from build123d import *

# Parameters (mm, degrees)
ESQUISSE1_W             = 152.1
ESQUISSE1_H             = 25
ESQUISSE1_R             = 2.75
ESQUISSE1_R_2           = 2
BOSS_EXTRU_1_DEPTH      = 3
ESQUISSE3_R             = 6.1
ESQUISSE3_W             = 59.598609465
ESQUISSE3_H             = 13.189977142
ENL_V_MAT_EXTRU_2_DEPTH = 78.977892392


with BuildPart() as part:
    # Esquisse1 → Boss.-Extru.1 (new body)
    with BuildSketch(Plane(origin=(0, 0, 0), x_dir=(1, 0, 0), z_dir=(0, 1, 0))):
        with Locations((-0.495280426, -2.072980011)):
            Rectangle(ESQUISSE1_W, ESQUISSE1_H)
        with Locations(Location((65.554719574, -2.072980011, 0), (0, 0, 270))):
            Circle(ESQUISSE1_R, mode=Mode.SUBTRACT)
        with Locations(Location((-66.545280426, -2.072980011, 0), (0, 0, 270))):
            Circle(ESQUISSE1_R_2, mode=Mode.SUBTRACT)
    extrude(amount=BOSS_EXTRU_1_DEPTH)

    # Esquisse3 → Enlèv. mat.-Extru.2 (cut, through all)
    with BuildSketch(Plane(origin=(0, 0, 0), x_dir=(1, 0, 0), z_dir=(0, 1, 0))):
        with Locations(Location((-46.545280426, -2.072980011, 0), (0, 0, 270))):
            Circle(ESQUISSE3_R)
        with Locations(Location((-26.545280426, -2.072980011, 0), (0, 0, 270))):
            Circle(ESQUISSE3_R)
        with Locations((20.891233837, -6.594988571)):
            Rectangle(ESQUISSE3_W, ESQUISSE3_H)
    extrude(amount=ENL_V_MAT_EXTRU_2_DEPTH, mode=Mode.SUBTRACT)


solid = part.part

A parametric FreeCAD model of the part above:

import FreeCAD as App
import Part
import Sketcher

V = App.Vector

doc = App.newDocument("Part")
body = doc.addObject("PartDesign::Body", "Body")

# Sketch on XZ plane
sketch1 = body.newObject("Sketcher::SketchObject", "Sketch")
sketch1.AttachmentSupport = (doc.getObject("XZ_Plane"), [""])
sketch1.MapMode = "FlatFace"
sketch1.addGeometry([
    Part.LineSegment(V(-76.5, -10.4, 0), V(-76.5, 14.6, 0)),  # 0
    Part.LineSegment(V(-76.5, 14.6, 0), V(75.6, 14.6, 0)),  # 1
    Part.LineSegment(V(75.6, 14.6, 0), V(75.6, -10.4, 0)),  # 2
    Part.LineSegment(V(75.6, -10.4, 0), V(-76.5, -10.4, 0)),  # 3
    Part.Circle(V(-66.5, 2.1, 0), V(0, 0, 1), 2),  # 4
    Part.Circle(V(65.6, 2.1, 0), V(0, 0, 1), 2.8),  # 5
], False)
sketch1.addConstraint([
    Sketcher.Constraint("Coincident", 0, 2, 1, 1),
    Sketcher.Constraint("Coincident", 1, 2, 2, 1),
    Sketcher.Constraint("Coincident", 2, 2, 3, 1),
    Sketcher.Constraint("Coincident", 3, 2, 0, 1),
    Sketcher.Constraint("Vertical", 0),
    Sketcher.Constraint("Horizontal", 1),
    Sketcher.Constraint("Vertical", 2),
    Sketcher.Constraint("Horizontal", 3),
    Sketcher.Constraint("Horizontal", 4, 3, 5, 3),
    Sketcher.Constraint("Diameter", 4, 4.0),
    Sketcher.Constraint("Diameter", 5, 5.5),
    Sketcher.Constraint("DistanceY", 0, 1, 0, 2, 25.0),
    Sketcher.Constraint("DistanceX", 1, 1, 1, 2, 152.1),
    Sketcher.Constraint("DistanceX", 0, 2, 4, 3, 10.0),
    Sketcher.Constraint("DistanceX", 5, 3, 1, 2, 10.0),
    Sketcher.Constraint("DistanceY", 4, 3, 0, 2, 12.5),
    Sketcher.Constraint("DistanceX", 4, 3, -1, 1, 66.54528),
    Sketcher.Constraint("DistanceY", -1, 1, 4, 3, 2.07298),
])
pad1 = body.newObject("PartDesign::Pad", "Pad")
pad1.Profile = sketch1
pad1.Length = 3
pad1.Reversed = True

# Sketch on XZ plane
sketch2 = body.newObject("Sketcher::SketchObject", "Sketch001")
sketch2.AttachmentSupport = (doc.getObject("XZ_Plane"), [""])
sketch2.MapMode = "FlatFace"
sketch2.addGeometry([
    Part.Circle(V(-47, 2, 0), V(0, 0, 1), 6),  # 0
    Part.Circle(V(-27, 2, 0), V(0, 0, 1), 6),  # 1
    Part.LineSegment(V(-9, 0, 0), V(-9, 13, 0)),  # 2
    Part.LineSegment(V(-9, 13, 0), V(51, 13, 0)),  # 3
    Part.LineSegment(V(51, 13, 0), V(51, 0, 0)),  # 4
    Part.LineSegment(V(51, 0, 0), V(-9, 0, 0)),  # 5
], False)
sketch2.addConstraint([
    Sketcher.Constraint("Coincident", 2, 2, 3, 1),
    Sketcher.Constraint("Coincident", 3, 2, 4, 1),
    Sketcher.Constraint("Coincident", 4, 2, 5, 1),
    Sketcher.Constraint("Coincident", 5, 2, 2, 1),
    Sketcher.Constraint("Vertical", 2),
    Sketcher.Constraint("Horizontal", 3),
    Sketcher.Constraint("Vertical", 4),
    Sketcher.Constraint("Horizontal", 5),
    Sketcher.Constraint("Equal", 0, 1),
    Sketcher.Constraint("PointOnObject", 4, 2, -1),
    Sketcher.Constraint("Horizontal", 0, 3, 1, 3),
    Sketcher.Constraint("Diameter", 0, 12.2),
    Sketcher.Constraint("DistanceX", 0, 3, 1, 3, 20.0),
    Sketcher.Constraint("DistanceX", 3, 1, 3, 2, 59.598609),
    Sketcher.Constraint("DistanceY", 2, 1, 2, 2, 13.189977),
    Sketcher.Constraint("DistanceX", 0, 3, -1, 1, 46.54528),
    Sketcher.Constraint("DistanceY", -1, 1, 0, 3, 2.07298),
    Sketcher.Constraint("DistanceX", 2, 2, -1, 1, 8.908071),
])
pocket1 = body.newObject("PartDesign::Pocket", "Pocket")
pocket1.Profile = sketch2
pocket1.Type = "ThroughAll"

doc.recompute()
